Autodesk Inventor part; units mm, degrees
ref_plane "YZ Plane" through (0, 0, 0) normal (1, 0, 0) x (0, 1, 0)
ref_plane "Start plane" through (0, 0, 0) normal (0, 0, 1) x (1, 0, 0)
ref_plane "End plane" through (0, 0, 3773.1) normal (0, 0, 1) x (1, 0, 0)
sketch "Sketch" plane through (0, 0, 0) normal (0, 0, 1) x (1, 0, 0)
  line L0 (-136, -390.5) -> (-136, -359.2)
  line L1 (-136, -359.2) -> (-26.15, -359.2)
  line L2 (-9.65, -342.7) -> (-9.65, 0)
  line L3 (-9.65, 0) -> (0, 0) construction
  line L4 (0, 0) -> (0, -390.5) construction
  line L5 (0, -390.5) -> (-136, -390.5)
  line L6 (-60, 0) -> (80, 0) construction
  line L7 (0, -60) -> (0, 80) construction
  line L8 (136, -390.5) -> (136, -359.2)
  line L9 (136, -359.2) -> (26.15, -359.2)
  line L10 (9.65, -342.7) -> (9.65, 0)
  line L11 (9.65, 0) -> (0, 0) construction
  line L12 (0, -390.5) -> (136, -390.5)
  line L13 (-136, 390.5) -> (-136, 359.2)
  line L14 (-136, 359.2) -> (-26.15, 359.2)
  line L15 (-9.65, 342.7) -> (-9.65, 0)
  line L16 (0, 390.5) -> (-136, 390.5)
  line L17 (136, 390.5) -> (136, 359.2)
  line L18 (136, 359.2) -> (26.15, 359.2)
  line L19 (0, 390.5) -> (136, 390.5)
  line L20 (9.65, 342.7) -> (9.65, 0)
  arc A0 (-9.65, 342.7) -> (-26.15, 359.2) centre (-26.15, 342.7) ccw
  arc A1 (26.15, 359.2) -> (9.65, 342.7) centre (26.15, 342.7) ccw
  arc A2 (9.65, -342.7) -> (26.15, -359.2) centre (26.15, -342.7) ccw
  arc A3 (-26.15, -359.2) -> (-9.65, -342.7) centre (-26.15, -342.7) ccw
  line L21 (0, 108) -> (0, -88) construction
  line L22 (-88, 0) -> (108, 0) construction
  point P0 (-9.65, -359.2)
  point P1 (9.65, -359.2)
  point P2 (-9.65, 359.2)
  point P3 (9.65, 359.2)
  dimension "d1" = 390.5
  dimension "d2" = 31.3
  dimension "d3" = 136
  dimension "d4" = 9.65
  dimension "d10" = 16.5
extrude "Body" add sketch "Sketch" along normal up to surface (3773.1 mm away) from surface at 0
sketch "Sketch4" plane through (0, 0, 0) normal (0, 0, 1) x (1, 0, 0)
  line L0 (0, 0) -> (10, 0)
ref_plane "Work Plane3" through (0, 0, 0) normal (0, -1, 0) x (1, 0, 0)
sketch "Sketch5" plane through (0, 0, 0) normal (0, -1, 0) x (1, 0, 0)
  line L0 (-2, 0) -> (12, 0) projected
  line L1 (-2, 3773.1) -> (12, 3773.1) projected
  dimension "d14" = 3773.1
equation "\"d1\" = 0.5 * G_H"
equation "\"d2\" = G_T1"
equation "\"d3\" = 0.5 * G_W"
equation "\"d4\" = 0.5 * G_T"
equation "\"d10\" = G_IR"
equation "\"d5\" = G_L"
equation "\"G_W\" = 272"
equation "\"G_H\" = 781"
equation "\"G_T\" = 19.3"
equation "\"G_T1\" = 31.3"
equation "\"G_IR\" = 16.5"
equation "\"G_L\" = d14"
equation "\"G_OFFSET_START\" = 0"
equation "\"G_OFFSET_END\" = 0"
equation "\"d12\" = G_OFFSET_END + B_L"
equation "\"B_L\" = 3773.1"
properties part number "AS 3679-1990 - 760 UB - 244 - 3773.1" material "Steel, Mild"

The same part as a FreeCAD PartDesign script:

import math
import FreeCAD as App
import Part
import Sketcher

V = App.Vector

doc = App.newDocument("Part")
body = doc.addObject("PartDesign::Body", "Body")

# Sketch on XY plane
sketch1 = doc.addObject("Sketcher::SketchObject", "Sketch")
body.addObject(sketch1)
sketch1.AttachmentSupport = (doc.XY_Plane, [""])
sketch1.MapMode = "FlatFace"
sketch1.addGeometry(Part.LineSegment(V(-136, -359, 0), V(-136, -390, 0)), False)
sketch1.addGeometry(Part.LineSegment(V(-136, -390, 0), V(136, -390, 0)), False)
sketch1.addGeometry(Part.LineSegment(V(136, -390, 0), V(136, -359, 0)), False)
sketch1.addGeometry(Part.LineSegment(V(136, -359, 0), V(26, -359, 0)), False)
sketch1.addGeometry(Part.ArcOfCircle(Part.Circle(V(26, -343, 0), V(0, 0, 1), 16), math.radians(180), math.radians(270)), False)
sketch1.addGeometry(Part.LineSegment(V(10, -343, 0), V(10, 343, 0)), False)
sketch1.addGeometry(Part.ArcOfCircle(Part.Circle(V(26, 343, 0), V(0, 0, 1), 16), math.radians(90), math.radians(180)), False)
sketch1.addGeometry(Part.LineSegment(V(26, 359, 0), V(136, 359, 0)), False)
sketch1.addGeometry(Part.LineSegment(V(136, 359, 0), V(136, 390, 0)), False)
sketch1.addGeometry(Part.LineSegment(V(136, 390, 0), V(-136, 390, 0)), False)
sketch1.addGeometry(Part.LineSegment(V(-136, 390, 0), V(-136, 359, 0)), False)
sketch1.addGeometry(Part.LineSegment(V(-136, 359, 0), V(-26, 359, 0)), False)
sketch1.addGeometry(Part.ArcOfCircle(Part.Circle(V(-26, 343, 0), V(0, 0, 1), 16), math.radians(0), math.radians(90)), False)
sketch1.addGeometry(Part.LineSegment(V(-10, 343, 0), V(-10, -343, 0)), False)
sketch1.addGeometry(Part.ArcOfCircle(Part.Circle(V(-26, -343, 0), V(0, 0, 1), 16), math.radians(-90), math.radians(0)), False)
sketch1.addGeometry(Part.LineSegment(V(-26, -359, 0), V(-136, -359, 0)), False)
sketch1.addConstraint(Sketcher.Constraint("Coincident", 0, 2, 1, 1))
sketch1.addConstraint(Sketcher.Constraint("Coincident", 1, 2, 2, 1))
sketch1.addConstraint(Sketcher.Constraint("Coincident", 2, 2, 3, 1))
sketch1.addConstraint(Sketcher.Constraint("Tangent", 3, 2, 4, 2))
sketch1.addConstraint(Sketcher.Constraint("Tangent", 4, 1, 5, 1))
sketch1.addConstraint(Sketcher.Constraint("Tangent", 5, 2, 6, 2))
sketch1.addConstraint(Sketcher.Constraint("Tangent", 6, 1, 7, 1))
sketch1.addConstraint(Sketcher.Constraint("Coincident", 7, 2, 8, 1))
sketch1.addConstraint(Sketcher.Constraint("Coincident", 8, 2, 9, 1))
sketch1.addConstraint(Sketcher.Constraint("Coincident", 9, 2, 10, 1))
sketch1.addConstraint(Sketcher.Constraint("Coincident", 10, 2, 11, 1))
sketch1.addConstraint(Sketcher.Constraint("Tangent", 11, 2, 12, 2))
sketch1.addConstraint(Sketcher.Constraint("Tangent", 12, 1, 13, 1))
sketch1.addConstraint(Sketcher.Constraint("Tangent", 13, 2, 14, 2))
sketch1.addConstraint(Sketcher.Constraint("Tangent", 14, 1, 15, 1))
sketch1.addConstraint(Sketcher.Constraint("Coincident", 15, 2, 0, 1))
sketch1.addConstraint(Sketcher.Constraint("Vertical", 0))
sketch1.addConstraint(Sketcher.Constraint("Horizontal", 1))
sketch1.addConstraint(Sketcher.Constraint("Vertical", 2))
sketch1.addConstraint(Sketcher.Constraint("Horizontal", 3))
sketch1.addConstraint(Sketcher.Constraint("Vertical", 5))
sketch1.addConstraint(Sketcher.Constraint("Horizontal", 7))
sketch1.addConstraint(Sketcher.Constraint("Vertical", 8))
sketch1.addConstraint(Sketcher.Constraint("Horizontal", 9))
sketch1.addConstraint(Sketcher.Constraint("Vertical", 10))
sketch1.addConstraint(Sketcher.Constraint("Horizontal", 11))
sketch1.addConstraint(Sketcher.Constraint("Vertical", 13))
sketch1.addConstraint(Sketcher.Constraint("Horizontal", 15))
sketch1.addConstraint(Sketcher.Constraint("Equal", 4, 6))
sketch1.addConstraint(Sketcher.Constraint("Equal", 6, 12))
sketch1.addConstraint(Sketcher.Constraint("Equal", 12, 14))
sketch1.addConstraint(Sketcher.Constraint("Symmetric", 4, 3, 12, 3, -1, 1))
sketch1.addConstraint(Sketcher.Constraint("Symmetric", 0, 2, 8, 2, -1, 1))
sketch1.addConstraint(Sketcher.Constraint("Symmetric", 7, 2, 10, 2, -2))
sketch1.addConstraint(Sketcher.Constraint("Symmetric", 2, 2, 15, 2, -2))
sketch1.addConstraint(Sketcher.Constraint("Radius", 4, 16.5))
sketch1.addConstraint(Sketcher.Constraint("DistanceY", 0, 2, 0, 1, 31.3))
sketch1.addConstraint(Sketcher.Constraint("DistanceX", 0, 2, -1, 1, 136.0))
sketch1.addConstraint(Sketcher.Constraint("DistanceY", 0, 2, -1, 1, 390.5))
sketch1.addConstraint(Sketcher.Constraint("DistanceX", -1, 1, 4, 1, 9.65))
pad1 = doc.addObject("PartDesign::Pad", "Pad")
body.addObject(pad1)
pad1.Profile = sketch1
pad1.Length = 3773.1

doc.recompute()
